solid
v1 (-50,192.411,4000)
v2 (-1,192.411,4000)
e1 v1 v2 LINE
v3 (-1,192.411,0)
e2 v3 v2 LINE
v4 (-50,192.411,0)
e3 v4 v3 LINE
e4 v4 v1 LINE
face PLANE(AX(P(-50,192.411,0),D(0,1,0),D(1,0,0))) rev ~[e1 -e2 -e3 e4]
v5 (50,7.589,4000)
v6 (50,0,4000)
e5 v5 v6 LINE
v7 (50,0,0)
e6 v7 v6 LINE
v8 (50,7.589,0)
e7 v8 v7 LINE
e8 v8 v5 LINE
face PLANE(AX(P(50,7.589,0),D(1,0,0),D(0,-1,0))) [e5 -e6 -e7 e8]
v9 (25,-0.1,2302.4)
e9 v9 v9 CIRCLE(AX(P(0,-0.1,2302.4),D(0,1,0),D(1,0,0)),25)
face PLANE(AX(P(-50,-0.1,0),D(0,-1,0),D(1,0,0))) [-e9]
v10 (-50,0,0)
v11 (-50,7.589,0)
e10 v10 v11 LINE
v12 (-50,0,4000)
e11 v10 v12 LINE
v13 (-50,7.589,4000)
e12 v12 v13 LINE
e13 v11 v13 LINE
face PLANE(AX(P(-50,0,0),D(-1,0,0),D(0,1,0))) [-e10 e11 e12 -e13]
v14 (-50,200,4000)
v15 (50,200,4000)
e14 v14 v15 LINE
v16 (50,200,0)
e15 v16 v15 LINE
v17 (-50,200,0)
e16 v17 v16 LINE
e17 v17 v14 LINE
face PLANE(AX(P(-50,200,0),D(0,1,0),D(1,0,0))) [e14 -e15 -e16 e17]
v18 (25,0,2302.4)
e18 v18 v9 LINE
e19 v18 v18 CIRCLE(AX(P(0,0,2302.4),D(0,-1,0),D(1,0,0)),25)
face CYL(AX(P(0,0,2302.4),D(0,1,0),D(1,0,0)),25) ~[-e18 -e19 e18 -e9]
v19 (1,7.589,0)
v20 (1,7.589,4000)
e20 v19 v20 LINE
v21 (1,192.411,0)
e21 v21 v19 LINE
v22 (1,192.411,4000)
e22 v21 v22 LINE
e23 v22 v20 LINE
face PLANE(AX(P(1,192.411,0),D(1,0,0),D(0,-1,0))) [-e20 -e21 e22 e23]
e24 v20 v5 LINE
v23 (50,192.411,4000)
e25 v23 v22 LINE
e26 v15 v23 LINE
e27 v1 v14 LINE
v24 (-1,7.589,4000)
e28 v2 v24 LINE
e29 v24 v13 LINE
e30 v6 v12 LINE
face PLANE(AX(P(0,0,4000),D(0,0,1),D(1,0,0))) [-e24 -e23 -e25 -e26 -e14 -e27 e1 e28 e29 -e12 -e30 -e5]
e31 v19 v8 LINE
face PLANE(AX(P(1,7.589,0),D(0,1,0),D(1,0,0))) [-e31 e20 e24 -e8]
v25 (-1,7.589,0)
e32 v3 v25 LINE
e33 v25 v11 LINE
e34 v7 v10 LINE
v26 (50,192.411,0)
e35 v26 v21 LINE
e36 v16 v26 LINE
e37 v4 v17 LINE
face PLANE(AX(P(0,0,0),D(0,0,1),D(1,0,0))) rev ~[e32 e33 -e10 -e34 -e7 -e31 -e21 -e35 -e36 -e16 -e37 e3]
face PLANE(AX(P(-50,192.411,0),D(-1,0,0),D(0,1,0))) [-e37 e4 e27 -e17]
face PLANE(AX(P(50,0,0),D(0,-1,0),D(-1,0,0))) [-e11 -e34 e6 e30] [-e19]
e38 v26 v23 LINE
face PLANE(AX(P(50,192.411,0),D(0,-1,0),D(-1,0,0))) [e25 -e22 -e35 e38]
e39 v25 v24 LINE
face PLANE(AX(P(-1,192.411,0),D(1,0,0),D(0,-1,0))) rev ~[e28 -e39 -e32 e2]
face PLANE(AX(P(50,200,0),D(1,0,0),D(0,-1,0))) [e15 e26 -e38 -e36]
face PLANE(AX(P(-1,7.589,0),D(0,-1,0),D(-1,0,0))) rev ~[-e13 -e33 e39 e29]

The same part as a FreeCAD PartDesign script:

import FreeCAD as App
import Part
import Sketcher


def add_polygon(sketch, points):
    """Adds a closed chain of lines whose ends are joined by coincident constraints."""
    first, n = sketch.GeometryCount, len(points)
    for a, b in zip(points, points[1:] + points[:1]):
        sketch.addGeometry(Part.LineSegment(App.Vector(*a, 0), App.Vector(*b, 0)), False)
    for i in range(n):
        sketch.addConstraint(Sketcher.Constraint("Coincident", first + i, 2, first + (i + 1) % n, 1))

doc = App.newDocument("Part")
body = doc.addObject("PartDesign::Body", "Body")

# Sketch on XY plane
sketch1 = body.newObject("Sketcher::SketchObject", "Sketch")
sketch1.AttachmentSupport = (doc.getObject("XY_Plane"), [""])
sketch1.MapMode = "FlatFace"
add_polygon(sketch1, [(50, 200), (-50, 200), (-50, 192), (-1, 192), (-1, 8), (-50, 8), (-50, 0), (50, 0), (50, 8), (1, 8), (1, 192), (50, 192)])  # lines 0-11
sketch1.addConstraint(Sketcher.Constraint("Horizontal", 0))
sketch1.addConstraint(Sketcher.Constraint("Vertical", 1))
sketch1.addConstraint(Sketcher.Constraint("Horizontal", 2))
sketch1.addConstraint(Sketcher.Constraint("Vertical", 3))
sketch1.addConstraint(Sketcher.Constraint("Horizontal", 4))
sketch1.addConstraint(Sketcher.Constraint("Vertical", 5))
sketch1.addConstraint(Sketcher.Constraint("Horizontal", 6))
sketch1.addConstraint(Sketcher.Constraint("Vertical", 7))
sketch1.addConstraint(Sketcher.Constraint("Horizontal", 8))
sketch1.addConstraint(Sketcher.Constraint("Vertical", 9))
sketch1.addConstraint(Sketcher.Constraint("Horizontal", 10))
sketch1.addConstraint(Sketcher.Constraint("Vertical", 11))
sketch1.addConstraint(Sketcher.Constraint("Symmetric", 5, 2, 6, 2, -1, 1))
sketch1.addConstraint(Sketcher.Constraint("Symmetric", 3, 2, 8, 2, -2))
sketch1.addConstraint(Sketcher.Constraint("Symmetric", 1, 2, 10, 2, -2))
sketch1.addConstraint(Sketcher.Constraint("Vertical", 1, 2, 4, 2))
sketch1.addConstraint(Sketcher.Constraint("Equal", 1, 5))
sketch1.addConstraint(Sketcher.Constraint("DistanceX", 0, 2, 0, 1, 100.0))
sketch1.addConstraint(Sketcher.Constraint("DistanceY", -1, 1, 0, 2, 200.0))
sketch1.addConstraint(Sketcher.Constraint("DistanceX", 3, 2, 8, 2, 2.0))
sketch1.addConstraint(Sketcher.Constraint("DistanceY", 1, 2, 1, 1, 7.589))
pad1 = body.newObject("PartDesign::Pad", "Pad")
pad1.Profile = sketch1
pad1.Length = 4000

# Sketch on XZ plane
sketch2 = body.newObject("Sketcher::SketchObject", "Sketch001")
sketch2.AttachmentSupport = (doc.getObject("XZ_Plane"), [""])
sketch2.MapMode = "FlatFace"
sketch2.addGeometry(Part.Circle(App.Vector(0, 2302, 0), App.Vector(0, 0, 1), 25), False)
sketch2.addConstraint(Sketcher.Constraint("PointOnObject", 0, 3, -2))
sketch2.addConstraint(Sketcher.Constraint("Diameter", 0, 50.0))
sketch2.addConstraint(Sketcher.Constraint("DistanceY", -1, 1, 0, 3, 2302.4))
pad2 = body.newObject("PartDesign::Pad", "Pad001")
pad2.Profile = sketch2
pad2.Length = 0.1

doc.recompute()
